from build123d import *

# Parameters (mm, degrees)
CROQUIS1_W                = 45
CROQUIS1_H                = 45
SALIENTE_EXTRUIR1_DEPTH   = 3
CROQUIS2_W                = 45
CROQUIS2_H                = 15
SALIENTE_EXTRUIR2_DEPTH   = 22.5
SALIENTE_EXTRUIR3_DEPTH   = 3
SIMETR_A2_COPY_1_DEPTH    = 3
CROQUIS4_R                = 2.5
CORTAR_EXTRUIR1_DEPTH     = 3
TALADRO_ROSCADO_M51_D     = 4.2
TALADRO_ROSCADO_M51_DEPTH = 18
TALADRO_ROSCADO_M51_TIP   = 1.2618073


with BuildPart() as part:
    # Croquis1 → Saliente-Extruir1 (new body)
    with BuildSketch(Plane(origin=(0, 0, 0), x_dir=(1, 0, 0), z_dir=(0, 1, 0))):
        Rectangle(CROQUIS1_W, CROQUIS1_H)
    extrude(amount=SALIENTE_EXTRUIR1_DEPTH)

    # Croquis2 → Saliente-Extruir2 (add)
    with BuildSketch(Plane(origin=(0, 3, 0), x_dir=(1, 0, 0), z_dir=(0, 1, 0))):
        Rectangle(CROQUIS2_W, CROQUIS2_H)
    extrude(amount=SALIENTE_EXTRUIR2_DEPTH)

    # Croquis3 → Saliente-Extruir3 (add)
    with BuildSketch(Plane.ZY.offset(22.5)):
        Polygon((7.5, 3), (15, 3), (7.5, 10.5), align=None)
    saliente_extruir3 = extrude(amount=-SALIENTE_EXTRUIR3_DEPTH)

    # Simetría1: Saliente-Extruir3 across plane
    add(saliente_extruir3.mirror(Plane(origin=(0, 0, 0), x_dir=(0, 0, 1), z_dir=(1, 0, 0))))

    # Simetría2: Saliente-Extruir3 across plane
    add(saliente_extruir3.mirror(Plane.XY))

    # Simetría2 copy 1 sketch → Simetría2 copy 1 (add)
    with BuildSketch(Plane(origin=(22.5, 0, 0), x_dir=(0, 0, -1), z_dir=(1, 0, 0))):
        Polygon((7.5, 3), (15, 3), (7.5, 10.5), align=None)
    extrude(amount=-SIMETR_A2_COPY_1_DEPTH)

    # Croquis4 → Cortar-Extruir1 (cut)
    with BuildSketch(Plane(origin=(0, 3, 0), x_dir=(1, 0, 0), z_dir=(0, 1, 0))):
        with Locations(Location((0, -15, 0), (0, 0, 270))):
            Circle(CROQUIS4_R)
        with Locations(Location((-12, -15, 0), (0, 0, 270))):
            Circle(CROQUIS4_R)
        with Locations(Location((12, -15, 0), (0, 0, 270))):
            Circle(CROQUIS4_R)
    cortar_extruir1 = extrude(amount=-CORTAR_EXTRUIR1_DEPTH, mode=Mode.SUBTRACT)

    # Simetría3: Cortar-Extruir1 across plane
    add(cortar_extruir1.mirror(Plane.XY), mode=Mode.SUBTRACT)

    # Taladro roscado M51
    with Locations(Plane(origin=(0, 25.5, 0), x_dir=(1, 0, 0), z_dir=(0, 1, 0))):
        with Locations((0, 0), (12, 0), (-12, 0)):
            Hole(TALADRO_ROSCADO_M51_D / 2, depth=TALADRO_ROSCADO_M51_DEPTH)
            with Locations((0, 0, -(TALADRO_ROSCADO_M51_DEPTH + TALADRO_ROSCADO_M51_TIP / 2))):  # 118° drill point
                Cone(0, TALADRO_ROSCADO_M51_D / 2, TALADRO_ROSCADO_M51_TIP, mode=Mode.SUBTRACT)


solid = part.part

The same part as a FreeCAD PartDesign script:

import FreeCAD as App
import Part
import Sketcher

V = App.Vector

doc = App.newDocument("Part")
body = doc.addObject("PartDesign::Body", "Body")

# Sketch on XZ plane
sketch1 = body.newObject("Sketcher::SketchObject", "Sketch")
sketch1.AttachmentSupport = (doc.getObject("XZ_Plane"), [""])
sketch1.MapMode = "FlatFace"
sketch1.addGeometry([
    Part.LineSegment(V(-22.5, -22.5, 0), V(-22.5, 22.5, 0)),
    Part.LineSegment(V(-22.5, 22.5, 0), V(22.5, 22.5, 0)),
    Part.LineSegment(V(22.5, 22.5, 0), V(22.5, -22.5, 0)),
    Part.LineSegment(V(22.5, -22.5, 0), V(-22.5, -22.5, 0)),
], False)
sketch1.addConstraint([
    Sketcher.Constraint("Coincident", 0, 2, 1, 1),
    Sketcher.Constraint("Coincident", 1, 2, 2, 1),
    Sketcher.Constraint("Coincident", 2, 2, 3, 1),
    Sketcher.Constraint("Coincident", 3, 2, 0, 1),
    Sketcher.Constraint("Vertical", 0),
    Sketcher.Constraint("Horizontal", 1),
    Sketcher.Constraint("Vertical", 2),
    Sketcher.Constraint("Horizontal", 3),
    Sketcher.Constraint("Symmetric", 0, 2, 2, 2, -1, 1),
    Sketcher.Constraint("Equal", 3, 0),
    Sketcher.Constraint("DistanceX", 1, 1, 1, 2, 45.0),
])
pad1 = body.newObject("PartDesign::Pad", "Pad")
pad1.Profile = sketch1
pad1.Length = 3
pad1.Reversed = True

# Sketch on XZ plane
sketch2 = body.newObject("Sketcher::SketchObject", "Sketch001")
sketch2.AttachmentSupport = (doc.getObject("XZ_Plane"), [""])
sketch2.MapMode = "FlatFace"
sketch2.AttachmentOffset = App.Placement(V(0, 0, -3), App.Rotation())
sketch2.addGeometry([
    Part.LineSegment(V(-22.5, -7.5, 0), V(-22.5, 7.5, 0)),
    Part.LineSegment(V(-22.5, 7.5, 0), V(22.5, 7.5, 0)),
    Part.LineSegment(V(22.5, 7.5, 0), V(22.5, -7.5, 0)),
    Part.LineSegment(V(22.5, -7.5, 0), V(-22.5, -7.5, 0)),
], False)
sketch2.addConstraint([
    Sketcher.Constraint("Coincident", 0, 2, 1, 1),
    Sketcher.Constraint("Coincident", 1, 2, 2, 1),
    Sketcher.Constraint("Coincident", 2, 2, 3, 1),
    Sketcher.Constraint("Coincident", 3, 2, 0, 1),
    Sketcher.Constraint("Vertical", 0),
    Sketcher.Constraint("Horizontal", 1),
    Sketcher.Constraint("Vertical", 2),
    Sketcher.Constraint("Horizontal", 3),
    Sketcher.Constraint("Symmetric", 0, 2, 2, 2, -1, 1),
    Sketcher.Constraint("DistanceX", 1, 1, 1, 2, 45.0),
    Sketcher.Constraint("DistanceY", 0, 1, 0, 2, 15.0),
])
pad2 = body.newObject("PartDesign::Pad", "Pad001")
pad2.Profile = sketch2
pad2.Length = 22.5
pad2.Reversed = True

# Sketch on YZ plane
sketch3 = body.newObject("Sketcher::SketchObject", "Sketch002")
sketch3.AttachmentSupport = (doc.getObject("YZ_Plane"), [""])
sketch3.MapMode = "FlatFace"
sketch3.AttachmentOffset = App.Placement(V(0, 0, -22.5), App.Rotation())
sketch3.addGeometry([
    Part.LineSegment(V(3, 7.5, 0), V(3, 15, 0)),
    Part.LineSegment(V(3, 15, 0), V(10.5, 7.5, 0)),
    Part.LineSegment(V(10.5, 7.5, 0), V(3, 7.5, 0)),
], False)
sketch3.addConstraint([
    Sketcher.Constraint("Coincident", 0, 2, 1, 1),
    Sketcher.Constraint("Coincident", 1, 2, 2, 1),
    Sketcher.Constraint("Coincident", 2, 2, 0, 1),
    Sketcher.Constraint("Vertical", 0),
    Sketcher.Constraint("Horizontal", 2),
    Sketcher.Constraint("Equal", 2, 0),
    Sketcher.Constraint("DistanceX", 2, 2, 2, 1, 7.5),
    Sketcher.Constraint("DistanceX", -1, 1, 0, 2, 3.0),
    Sketcher.Constraint("DistanceY", -1, 1, 0, 2, 15.0),
])
pad3 = body.newObject("PartDesign::Pad", "Pad002")
pad3.Profile = sketch3
pad3.Length = 3
doc.recompute()

mirrored = body.newObject("PartDesign::Mirrored", "Mirrored")
mirrored.Originals = [pad3]
mirrored.MirrorPlane = (doc.getObject("YZ_Plane"), [""])
body.Tip = mirrored
doc.recompute()

mirrored2 = body.newObject("PartDesign::Mirrored", "Mirrored001")
mirrored2.Originals = [pad3]
mirrored2.MirrorPlane = (doc.getObject("XY_Plane"), [""])
body.Tip = mirrored2

# Sketch on YZ plane
sketch4 = body.newObject("Sketcher::SketchObject", "Sketch003")
sketch4.AttachmentSupport = (doc.getObject("YZ_Plane"), [""])
sketch4.MapMode = "FlatFace"
sketch4.AttachmentOffset = App.Placement(V(0, 0, 22.5), App.Rotation())
sketch4.addGeometry([
    Part.LineSegment(V(3, -7.5, 0), V(3, -15, 0)),
    Part.LineSegment(V(3, -15, 0), V(10.5, -7.5, 0)),
    Part.LineSegment(V(10.5, -7.5, 0), V(3, -7.5, 0)),
], False)
sketch4.addConstraint([
    Sketcher.Constraint("Coincident", 0, 2, 1, 1),
    Sketcher.Constraint("Coincident", 1, 2, 2, 1),
    Sketcher.Constraint("Coincident", 2, 2, 0, 1),
    Sketcher.Constraint("Vertical", 0),
    Sketcher.Constraint("Horizontal", 2),
    Sketcher.Constraint("Equal", 2, 0),
    Sketcher.Constraint("DistanceX", 2, 2, 2, 1, 7.5),
    Sketcher.Constraint("DistanceX", -1, 1, 0, 2, 3.0),
    Sketcher.Constraint("DistanceY", 0, 2, -1, 1, 15.0),
])
pad4 = body.newObject("PartDesign::Pad", "Pad003")
pad4.Profile = sketch4
pad4.Length = 3
pad4.Reversed = True

# Sketch on XZ plane
sketch5 = body.newObject("Sketcher::SketchObject", "Sketch004")
sketch5.AttachmentSupport = (doc.getObject("XZ_Plane"), [""])
sketch5.MapMode = "FlatFace"
sketch5.AttachmentOffset = App.Placement(V(0, 0, -3), App.Rotation())
sketch5.addGeometry([
    Part.Circle(V(0, 15, 0), V(0, 0, 1), 2.5),
    Part.Circle(V(-12, 15, 0), V(0, 0, 1), 2.5),
    Part.Circle(V(12, 15, 0), V(0, 0, 1), 2.5),
], False)
sketch5.addConstraint([
    Sketcher.Constraint("Equal", 0, 1),
    Sketcher.Constraint("Equal", 1, 2),
    Sketcher.Constraint("Symmetric", 1, 3, 2, 3, -2),
    Sketcher.Constraint("PointOnObject", 0, 3, -2),
    Sketcher.Constraint("Horizontal", 0, 3, 1, 3),
    Sketcher.Constraint("Diameter", 0, 5.0),
    Sketcher.Constraint("DistanceY", -1, 1, 0, 3, 15.0),
    Sketcher.Constraint("DistanceX", 1, 3, -1, 1, 12.0),
])
pocket1 = body.newObject("PartDesign::Pocket", "Pocket")
pocket1.Profile = sketch5
pocket1.Length = 3
pocket1.Reversed = True
doc.recompute()

mirrored3 = body.newObject("PartDesign::Mirrored", "Mirrored002")
mirrored3.Originals = [pocket1]
mirrored3.MirrorPlane = (doc.getObject("XY_Plane"), [""])
body.Tip = mirrored3

# Sketch on XZ plane
sketch6 = body.newObject("Sketcher::SketchObject", "Sketch005")
sketch6.AttachmentSupport = (doc.getObject("XZ_Plane"), [""])
sketch6.MapMode = "FlatFace"
sketch6.AttachmentOffset = App.Placement(V(0, 0, -25.5), App.Rotation())
sketch6.addGeometry([
    Part.Circle(V(0, 0, 0), V(0, 0, 1), 2.1),
    Part.Circle(V(12, 0, 0), V(0, 0, 1), 2.1),
    Part.Circle(V(-12, 0, 0), V(0, 0, 1), 2.1),
], False)
sketch6.addConstraint([
    Sketcher.Constraint("Coincident", 0, 3, -1, 1),
    Sketcher.Constraint("Equal", 0, 1),
    Sketcher.Constraint("Equal", 1, 2),
    Sketcher.Constraint("Symmetric", 1, 3, 2, 3, -1, 1),
    Sketcher.Constraint("PointOnObject", 1, 3, -1),
    Sketcher.Constraint("Diameter", 0, 4.2),
    Sketcher.Constraint("DistanceX", -1, 1, 1, 3, 12.0),
])
doc.recompute()
hole = body.newObject("PartDesign::Hole", "Hole")
hole.Profile = sketch6
hole.ThreadType = "None"
hole.Diameter = 4.2
hole.DepthType = "Dimension"
hole.Depth = 18
hole.DrillPoint = "Angled"
hole.DrillPointAngle = 118
hole.Reversed = True

doc.recompute()
